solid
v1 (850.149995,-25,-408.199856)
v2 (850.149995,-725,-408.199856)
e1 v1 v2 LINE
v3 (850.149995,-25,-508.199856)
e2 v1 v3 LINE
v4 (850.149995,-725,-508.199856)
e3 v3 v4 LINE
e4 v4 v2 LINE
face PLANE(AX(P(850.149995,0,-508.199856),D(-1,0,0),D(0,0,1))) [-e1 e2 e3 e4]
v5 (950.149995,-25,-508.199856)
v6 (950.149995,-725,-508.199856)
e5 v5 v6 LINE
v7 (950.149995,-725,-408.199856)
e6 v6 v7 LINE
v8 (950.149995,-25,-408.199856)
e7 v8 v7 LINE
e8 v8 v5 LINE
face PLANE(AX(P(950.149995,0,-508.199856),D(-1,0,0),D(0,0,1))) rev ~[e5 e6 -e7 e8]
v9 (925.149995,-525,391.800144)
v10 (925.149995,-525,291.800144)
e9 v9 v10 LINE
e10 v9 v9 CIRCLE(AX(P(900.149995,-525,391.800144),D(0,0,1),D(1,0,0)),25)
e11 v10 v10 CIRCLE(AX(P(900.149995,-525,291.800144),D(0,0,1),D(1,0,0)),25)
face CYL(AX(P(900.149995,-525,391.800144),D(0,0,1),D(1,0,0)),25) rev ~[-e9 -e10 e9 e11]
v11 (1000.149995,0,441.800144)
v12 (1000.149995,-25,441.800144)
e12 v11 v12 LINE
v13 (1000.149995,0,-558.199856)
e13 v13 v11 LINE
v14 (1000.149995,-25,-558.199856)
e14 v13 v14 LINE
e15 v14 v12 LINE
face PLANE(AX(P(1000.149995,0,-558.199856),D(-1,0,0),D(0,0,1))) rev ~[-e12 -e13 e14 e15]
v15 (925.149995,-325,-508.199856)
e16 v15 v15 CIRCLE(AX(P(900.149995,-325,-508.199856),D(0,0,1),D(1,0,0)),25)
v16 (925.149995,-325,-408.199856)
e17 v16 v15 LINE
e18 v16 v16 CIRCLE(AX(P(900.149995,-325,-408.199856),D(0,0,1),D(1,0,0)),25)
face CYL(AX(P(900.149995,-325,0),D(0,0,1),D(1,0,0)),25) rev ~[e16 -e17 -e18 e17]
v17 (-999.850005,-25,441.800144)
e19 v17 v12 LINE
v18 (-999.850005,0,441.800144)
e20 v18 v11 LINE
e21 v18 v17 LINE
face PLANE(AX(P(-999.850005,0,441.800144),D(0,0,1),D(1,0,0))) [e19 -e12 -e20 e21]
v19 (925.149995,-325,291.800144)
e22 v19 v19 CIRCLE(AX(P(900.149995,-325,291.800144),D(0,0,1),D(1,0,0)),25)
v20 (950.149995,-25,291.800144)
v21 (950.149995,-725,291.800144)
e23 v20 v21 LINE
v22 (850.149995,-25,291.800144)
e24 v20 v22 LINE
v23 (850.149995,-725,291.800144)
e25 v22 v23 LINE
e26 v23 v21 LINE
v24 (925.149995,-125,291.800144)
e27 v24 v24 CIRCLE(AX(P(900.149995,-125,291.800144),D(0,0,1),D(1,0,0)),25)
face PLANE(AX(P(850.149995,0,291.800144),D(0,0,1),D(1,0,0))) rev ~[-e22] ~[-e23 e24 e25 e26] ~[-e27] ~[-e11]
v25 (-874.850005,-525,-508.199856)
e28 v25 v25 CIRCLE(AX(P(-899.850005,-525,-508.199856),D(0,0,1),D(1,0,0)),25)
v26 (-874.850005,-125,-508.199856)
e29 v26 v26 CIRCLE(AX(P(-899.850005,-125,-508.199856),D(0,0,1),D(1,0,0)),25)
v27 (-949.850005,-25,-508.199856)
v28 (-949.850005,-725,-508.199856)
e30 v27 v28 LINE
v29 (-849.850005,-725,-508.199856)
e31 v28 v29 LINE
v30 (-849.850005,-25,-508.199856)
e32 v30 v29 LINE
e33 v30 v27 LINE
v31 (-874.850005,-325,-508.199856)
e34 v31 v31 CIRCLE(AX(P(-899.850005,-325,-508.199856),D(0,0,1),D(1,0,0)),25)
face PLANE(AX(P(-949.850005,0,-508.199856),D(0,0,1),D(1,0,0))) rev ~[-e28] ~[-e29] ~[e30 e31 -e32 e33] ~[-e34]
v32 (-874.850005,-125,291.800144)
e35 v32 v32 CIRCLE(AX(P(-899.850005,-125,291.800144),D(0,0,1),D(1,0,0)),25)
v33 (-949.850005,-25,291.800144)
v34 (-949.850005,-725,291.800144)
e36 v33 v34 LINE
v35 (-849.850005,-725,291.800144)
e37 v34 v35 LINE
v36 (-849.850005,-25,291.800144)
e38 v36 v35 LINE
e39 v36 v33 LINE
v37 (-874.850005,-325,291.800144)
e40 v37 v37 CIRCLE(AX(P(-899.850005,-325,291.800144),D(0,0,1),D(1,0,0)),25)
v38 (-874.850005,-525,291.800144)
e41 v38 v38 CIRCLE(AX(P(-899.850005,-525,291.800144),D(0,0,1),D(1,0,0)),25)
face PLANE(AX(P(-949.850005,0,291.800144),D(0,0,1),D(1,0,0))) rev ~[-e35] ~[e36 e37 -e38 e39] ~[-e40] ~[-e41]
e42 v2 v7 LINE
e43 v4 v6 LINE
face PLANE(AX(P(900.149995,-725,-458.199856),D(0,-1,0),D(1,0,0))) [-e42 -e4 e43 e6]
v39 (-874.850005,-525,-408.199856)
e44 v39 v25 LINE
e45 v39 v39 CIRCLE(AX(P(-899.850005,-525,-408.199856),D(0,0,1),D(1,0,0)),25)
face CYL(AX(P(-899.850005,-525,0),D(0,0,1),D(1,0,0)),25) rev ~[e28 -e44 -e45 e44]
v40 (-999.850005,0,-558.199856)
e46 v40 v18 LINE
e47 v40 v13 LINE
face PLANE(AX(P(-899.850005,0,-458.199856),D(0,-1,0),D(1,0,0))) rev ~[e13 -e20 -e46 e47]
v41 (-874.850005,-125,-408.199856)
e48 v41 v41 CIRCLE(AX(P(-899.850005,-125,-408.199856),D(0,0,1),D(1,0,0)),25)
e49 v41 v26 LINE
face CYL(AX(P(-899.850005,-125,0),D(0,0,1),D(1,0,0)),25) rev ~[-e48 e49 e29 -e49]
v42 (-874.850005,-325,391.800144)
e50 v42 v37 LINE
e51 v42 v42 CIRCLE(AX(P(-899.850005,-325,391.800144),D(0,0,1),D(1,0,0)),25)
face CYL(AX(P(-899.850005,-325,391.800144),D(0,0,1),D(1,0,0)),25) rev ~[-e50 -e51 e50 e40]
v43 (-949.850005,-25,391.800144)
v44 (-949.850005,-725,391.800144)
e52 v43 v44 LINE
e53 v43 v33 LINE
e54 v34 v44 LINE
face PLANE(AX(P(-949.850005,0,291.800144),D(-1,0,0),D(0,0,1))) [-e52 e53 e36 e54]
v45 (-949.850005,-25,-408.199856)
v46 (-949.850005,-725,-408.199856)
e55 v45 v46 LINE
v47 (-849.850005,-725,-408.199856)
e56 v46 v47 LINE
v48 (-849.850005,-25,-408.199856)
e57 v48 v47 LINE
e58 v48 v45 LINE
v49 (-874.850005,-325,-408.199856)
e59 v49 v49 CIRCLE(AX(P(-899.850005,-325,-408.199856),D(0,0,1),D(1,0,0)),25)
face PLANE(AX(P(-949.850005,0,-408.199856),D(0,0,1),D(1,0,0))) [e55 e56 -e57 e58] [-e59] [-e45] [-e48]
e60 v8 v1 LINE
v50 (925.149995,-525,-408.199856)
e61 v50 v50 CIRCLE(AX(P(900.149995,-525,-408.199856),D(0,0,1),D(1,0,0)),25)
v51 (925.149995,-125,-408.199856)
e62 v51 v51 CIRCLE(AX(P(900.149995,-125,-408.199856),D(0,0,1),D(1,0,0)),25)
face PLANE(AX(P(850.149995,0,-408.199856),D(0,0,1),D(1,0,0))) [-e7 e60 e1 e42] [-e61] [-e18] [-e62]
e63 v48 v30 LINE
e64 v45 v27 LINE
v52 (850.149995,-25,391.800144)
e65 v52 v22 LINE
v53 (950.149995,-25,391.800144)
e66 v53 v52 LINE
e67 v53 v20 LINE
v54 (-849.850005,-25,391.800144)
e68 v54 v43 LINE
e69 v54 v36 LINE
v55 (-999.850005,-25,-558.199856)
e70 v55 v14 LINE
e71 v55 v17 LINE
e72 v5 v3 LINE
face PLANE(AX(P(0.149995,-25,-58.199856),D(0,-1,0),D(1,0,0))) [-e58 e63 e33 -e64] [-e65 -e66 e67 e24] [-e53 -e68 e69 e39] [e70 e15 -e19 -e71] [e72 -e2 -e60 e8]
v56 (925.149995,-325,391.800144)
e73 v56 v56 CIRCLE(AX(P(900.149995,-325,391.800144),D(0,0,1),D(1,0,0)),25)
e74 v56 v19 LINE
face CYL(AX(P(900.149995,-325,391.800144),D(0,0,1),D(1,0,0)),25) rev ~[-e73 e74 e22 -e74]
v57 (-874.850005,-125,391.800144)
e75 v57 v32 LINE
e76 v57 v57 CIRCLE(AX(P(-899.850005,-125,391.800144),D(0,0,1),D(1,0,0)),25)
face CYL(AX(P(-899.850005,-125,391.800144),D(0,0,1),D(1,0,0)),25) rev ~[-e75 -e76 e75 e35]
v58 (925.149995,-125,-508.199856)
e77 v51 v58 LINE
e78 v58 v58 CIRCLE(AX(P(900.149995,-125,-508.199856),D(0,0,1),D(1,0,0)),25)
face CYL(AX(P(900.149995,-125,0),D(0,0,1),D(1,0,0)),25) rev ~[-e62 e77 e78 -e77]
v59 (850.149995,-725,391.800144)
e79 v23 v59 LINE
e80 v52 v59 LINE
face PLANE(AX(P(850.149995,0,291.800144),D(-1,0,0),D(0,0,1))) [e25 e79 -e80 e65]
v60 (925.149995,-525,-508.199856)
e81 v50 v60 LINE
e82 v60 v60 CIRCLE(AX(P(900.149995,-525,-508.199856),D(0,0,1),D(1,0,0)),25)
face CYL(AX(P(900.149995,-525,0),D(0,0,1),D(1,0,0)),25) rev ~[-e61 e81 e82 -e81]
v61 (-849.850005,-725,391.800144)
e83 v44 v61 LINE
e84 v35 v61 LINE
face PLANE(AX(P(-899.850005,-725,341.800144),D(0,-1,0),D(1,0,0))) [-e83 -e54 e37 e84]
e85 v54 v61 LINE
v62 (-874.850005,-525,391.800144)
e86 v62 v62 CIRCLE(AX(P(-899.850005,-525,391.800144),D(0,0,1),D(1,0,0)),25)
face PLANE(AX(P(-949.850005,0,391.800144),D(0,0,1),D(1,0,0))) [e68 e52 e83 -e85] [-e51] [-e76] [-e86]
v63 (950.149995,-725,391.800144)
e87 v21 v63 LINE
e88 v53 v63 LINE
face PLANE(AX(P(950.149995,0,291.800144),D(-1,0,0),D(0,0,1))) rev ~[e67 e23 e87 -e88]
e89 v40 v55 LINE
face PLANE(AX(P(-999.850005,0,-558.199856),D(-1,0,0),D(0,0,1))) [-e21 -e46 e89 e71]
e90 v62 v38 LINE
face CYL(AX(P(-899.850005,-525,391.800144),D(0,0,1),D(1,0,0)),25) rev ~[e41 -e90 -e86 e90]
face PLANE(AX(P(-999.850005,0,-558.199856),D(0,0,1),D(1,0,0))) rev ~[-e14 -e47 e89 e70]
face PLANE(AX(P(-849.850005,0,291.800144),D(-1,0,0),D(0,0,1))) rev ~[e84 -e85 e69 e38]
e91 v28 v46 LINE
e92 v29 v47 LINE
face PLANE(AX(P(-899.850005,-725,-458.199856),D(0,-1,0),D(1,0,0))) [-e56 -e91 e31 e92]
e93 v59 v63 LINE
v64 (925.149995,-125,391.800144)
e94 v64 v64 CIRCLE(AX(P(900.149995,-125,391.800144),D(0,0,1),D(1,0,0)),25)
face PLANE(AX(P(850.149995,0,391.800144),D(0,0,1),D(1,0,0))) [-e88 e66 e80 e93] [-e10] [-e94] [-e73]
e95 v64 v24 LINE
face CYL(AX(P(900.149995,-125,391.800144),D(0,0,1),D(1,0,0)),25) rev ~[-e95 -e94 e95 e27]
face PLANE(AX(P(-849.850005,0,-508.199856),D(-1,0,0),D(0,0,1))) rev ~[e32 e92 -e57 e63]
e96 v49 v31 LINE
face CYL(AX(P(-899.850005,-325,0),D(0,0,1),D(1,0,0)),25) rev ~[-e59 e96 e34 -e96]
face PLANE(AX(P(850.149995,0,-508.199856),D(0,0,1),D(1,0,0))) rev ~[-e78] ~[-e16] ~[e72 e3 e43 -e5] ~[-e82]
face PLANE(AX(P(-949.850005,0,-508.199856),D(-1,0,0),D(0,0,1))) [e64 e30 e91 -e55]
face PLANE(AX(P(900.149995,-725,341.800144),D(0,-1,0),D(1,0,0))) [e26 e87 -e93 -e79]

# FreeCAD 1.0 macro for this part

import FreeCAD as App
import Part
import Sketcher

V = App.Vector
Q = App.Units.Quantity

doc = App.newDocument("Part")
body = doc.addObject("PartDesign::Body", "Body")

sketch1 = body.newObject("Sketcher::SketchObject", "Sketch")
sketch1.AttachmentSupport = (doc.getObject("XZ_Plane"), [""])
sketch1.MapMode = "FlatFace"
sketch1.addGeometry(Part.LineSegment(V(-1000, 442, 0), V(-1000, -558, 0)), False)
sketch1.addGeometry(Part.LineSegment(V(-1000, -558, 0), V(1000, -558, 0)), False)
sketch1.addGeometry(Part.LineSegment(V(1000, -558, 0), V(1000, 442, 0)), False)
sketch1.addGeometry(Part.LineSegment(V(1000, 442, 0), V(-1000, 442, 0)), False)
sketch1.addConstraint(Sketcher.Constraint("Coincident", 0, 2, 1, 1))
sketch1.addConstraint(Sketcher.Constraint("Coincident", 1, 2, 2, 1))
sketch1.addConstraint(Sketcher.Constraint("Coincident", 2, 2, 3, 1))
sketch1.addConstraint(Sketcher.Constraint("Coincident", 3, 2, 0, 1))
sketch1.addConstraint(Sketcher.Constraint("Vertical", 0))
sketch1.addConstraint(Sketcher.Constraint("Horizontal", 1))
sketch1.addConstraint(Sketcher.Constraint("Vertical", 2))
sketch1.addConstraint(Sketcher.Constraint("Horizontal", 3))
sketch1.addConstraint(Sketcher.Constraint("DistanceX", 1, 1, 1, 2, Q("2000 mm")))
sketch1.addConstraint(Sketcher.Constraint("DistanceY", 0, 2, 0, 1, Q("1000 mm")))
sketch1.addConstraint(Sketcher.Constraint("DistanceX", 0, 2, -1, 1, Q("999.850005 mm")))
sketch1.addConstraint(Sketcher.Constraint("DistanceY", 0, 2, -1, 1, Q("558.199856 mm")))
pad1 = body.newObject("PartDesign::Pad", "Pad")
pad1.Profile = sketch1
pad1.Length = 25

sketch2 = body.newObject("Sketcher::SketchObject", "Sketch001")
sketch2.AttachmentSupport = (doc.getObject("XZ_Plane"), [""])
sketch2.MapMode = "FlatFace"
sketch2.addGeometry(Part.LineSegment(V(-950, -408, 0), V(-950, -508, 0)), False)
sketch2.addGeometry(Part.LineSegment(V(-950, -508, 0), V(-850, -508, 0)), False)
sketch2.addGeometry(Part.LineSegment(V(-850, -508, 0), V(-850, -408, 0)), False)
sketch2.addGeometry(Part.LineSegment(V(-850, -408, 0), V(-950, -408, 0)), False)
sketch2.addGeometry(Part.LineSegment(V(-950, 392, 0), V(-950, 292, 0)), False)
sketch2.addGeometry(Part.LineSegment(V(-950, 292, 0), V(-850, 292, 0)), False)
sketch2.addGeometry(Part.LineSegment(V(-850, 292, 0), V(-850, 392, 0)), False)
sketch2.addGeometry(Part.LineSegment(V(-850, 392, 0), V(-950, 392, 0)), False)
sketch2.addGeometry(Part.LineSegment(V(850, 392, 0), V(850, 292, 0)), False)
sketch2.addGeometry(Part.LineSegment(V(850, 292, 0), V(950, 292, 0)), False)
sketch2.addGeometry(Part.LineSegment(V(950, 292, 0), V(950, 392, 0)), False)
sketch2.addGeometry(Part.LineSegment(V(950, 392, 0), V(850, 392, 0)), False)
sketch2.addGeometry(Part.LineSegment(V(850, -408, 0), V(850, -508, 0)), False)
sketch2.addGeometry(Part.LineSegment(V(850, -508, 0), V(950, -508, 0)), False)
sketch2.addGeometry(Part.LineSegment(V(950, -508, 0), V(950, -408, 0)), False)
sketch2.addGeometry(Part.LineSegment(V(950, -408, 0), V(850, -408, 0)), False)
sketch2.addConstraint(Sketcher.Constraint("Coincident", 0, 2, 1, 1))
sketch2.addConstraint(Sketcher.Constraint("Coincident", 1, 2, 2, 1))
sketch2.addConstraint(Sketcher.Constraint("Coincident", 2, 2, 3, 1))
sketch2.addConstraint(Sketcher.Constraint("Coincident", 3, 2, 0, 1))
sketch2.addConstraint(Sketcher.Constraint("Coincident", 4, 2, 5, 1))
sketch2.addConstraint(Sketcher.Constraint("Coincident", 5, 2, 6, 1))
sketch2.addConstraint(Sketcher.Constraint("Coincident", 6, 2, 7, 1))
sketch2.addConstraint(Sketcher.Constraint("Coincident", 7, 2, 4, 1))
sketch2.addConstraint(Sketcher.Constraint("Coincident", 8, 2, 9, 1))
sketch2.addConstraint(Sketcher.Constraint("Coincident", 9, 2, 10, 1))
sketch2.addConstraint(Sketcher.Constraint("Coincident", 10, 2, 11, 1))
sketch2.addConstraint(Sketcher.Constraint("Coincident", 11, 2, 8, 1))
sketch2.addConstraint(Sketcher.Constraint("Coincident", 12, 2, 13, 1))
sketch2.addConstraint(Sketcher.Constraint("Coincident", 13, 2, 14, 1))
sketch2.addConstraint(Sketcher.Constraint("Coincident", 14, 2, 15, 1))
sketch2.addConstraint(Sketcher.Constraint("Coincident", 15, 2, 12, 1))
sketch2.addConstraint(Sketcher.Constraint("Vertical", 0))
sketch2.addConstraint(Sketcher.Constraint("Horizontal", 1))
sketch2.addConstraint(Sketcher.Constraint("Vertical", 2))
sketch2.addConstraint(Sketcher.Constraint("Horizontal", 3))
sketch2.addConstraint(Sketcher.Constraint("Vertical", 4))
sketch2.addConstraint(Sketcher.Constraint("Horizontal", 5))
sketch2.addConstraint(Sketcher.Constraint("Vertical", 6))
sketch2.addConstraint(Sketcher.Constraint("Horizontal", 7))
sketch2.addConstraint(Sketcher.Constraint("Vertical", 8))
sketch2.addConstraint(Sketcher.Constraint("Horizontal", 9))
sketch2.addConstraint(Sketcher.Constraint("Vertical", 10))
sketch2.addConstraint(Sketcher.Constraint("Horizontal", 11))
sketch2.addConstraint(Sketcher.Constraint("Vertical", 12))
sketch2.addConstraint(Sketcher.Constraint("Horizontal", 13))
sketch2.addConstraint(Sketcher.Constraint("Vertical", 14))
sketch2.addConstraint(Sketcher.Constraint("Horizontal", 15))
sketch2.addConstraint(Sketcher.Constraint("Horizontal", 5, 2, 8, 2))
sketch2.addConstraint(Sketcher.Constraint("Horizontal", 7, 2, 10, 2))
sketch2.addConstraint(Sketcher.Constraint("Horizontal", 1, 2, 12, 2))
sketch2.addConstraint(Sketcher.Constraint("Horizontal", 3, 2, 14, 2))
sketch2.addConstraint(Sketcher.Constraint("Vertical", 3, 2, 4, 2))
sketch2.addConstraint(Sketcher.Constraint("Vertical", 2, 2, 5, 2))
sketch2.addConstraint(Sketcher.Constraint("Vertical", 11, 2, 12, 2))
sketch2.addConstraint(Sketcher.Constraint("Vertical", 10, 2, 13, 2))
sketch2.addConstraint(Sketcher.Constraint("Equal", 7, 9))
sketch2.addConstraint(Sketcher.Constraint("Equal", 15, 0))
sketch2.addConstraint(Sketcher.Constraint("Equal", 2, 4))
sketch2.addConstraint(Sketcher.Constraint("DistanceX", 1, 1, 1, 2, Q("100 mm")))
sketch2.addConstraint(Sketcher.Constraint("DistanceY", 3, 2, 4, 2, Q("700 mm")))
sketch2.addConstraint(Sketcher.Constraint("DistanceX", 5, 2, 8, 2, Q("1700 mm")))
sketch2.addConstraint(Sketcher.Constraint("DistanceX", 0, 2, -1, 1, Q("949.850005 mm")))
sketch2.addConstraint(Sketcher.Constraint("DistanceY", 0, 2, -1, 1, Q("508.199856 mm")))
pad2 = body.newObject("PartDesign::Pad", "Pad001")
pad2.Profile = sketch2
pad2.Length = 725

sketch3 = body.newObject("Sketcher::SketchObject", "Sketch002")
sketch3.AttachmentSupport = (doc.getObject("XY_Plane"), [""])
sketch3.MapMode = "FlatFace"
sketch3.addGeometry(Part.Circle(V(-900, -125, 0), V(0, 0, 1), 25), False)
sketch3.addGeometry(Part.Circle(V(-900, -325, 0), V(0, 0, 1), 25), False)
sketch3.addGeometry(Part.Circle(V(-900, -525, 0), V(0, 0, 1), 25), False)
sketch3.addGeometry(Part.Circle(V(900, -525, 0), V(0, 0, 1), 25), False)
sketch3.addGeometry(Part.Circle(V(900, -325, 0), V(0, 0, 1), 25), False)
sketch3.addGeometry(Part.Circle(V(900, -125, 0), V(0, 0, 1), 25), False)
sketch3.addConstraint(Sketcher.Constraint("Equal", 0, 1))
sketch3.addConstraint(Sketcher.Constraint("Equal", 1, 2))
sketch3.addConstraint(Sketcher.Constraint("Equal", 2, 3))
sketch3.addConstraint(Sketcher.Constraint("Equal", 3, 4))
sketch3.addConstraint(Sketcher.Constraint("Equal", 4, 5))
sketch3.addConstraint(Sketcher.Constraint("Horizontal", 2, 3, 3, 3))
sketch3.addConstraint(Sketcher.Constraint("Horizontal", 1, 3, 4, 3))
sketch3.addConstraint(Sketcher.Constraint("Horizontal", 0, 3, 5, 3))
sketch3.addConstraint(Sketcher.Constraint("Vertical", 0, 3, 1, 3))
sketch3.addConstraint(Sketcher.Constraint("Vertical", 1, 3, 2, 3))
sketch3.addConstraint(Sketcher.Constraint("Vertical", 3, 3, 4, 3))
sketch3.addConstraint(Sketcher.Constraint("Vertical", 4, 3, 5, 3))
sketch3.addConstraint(Sketcher.Constraint("Diameter", 0, Q("50 mm")))
sketch3.addConstraint(Sketcher.Constraint("DistanceY", 0, 3, -1, 1, Q("125 mm")))
sketch3.addConstraint(Sketcher.Constraint("DistanceY", 1, 3, -1, 1, Q("325 mm")))
sketch3.addConstraint(Sketcher.Constraint("DistanceY", 2, 3, -1, 1, Q("525 mm")))
sketch3.addConstraint(Sketcher.Constraint("DistanceX", 2, 3, 3, 3, Q("1800 mm")))
sketch3.addConstraint(Sketcher.Constraint("DistanceX", 0, 3, -1, 1, Q("899.850005 mm")))
pocket1 = body.newObject("PartDesign::Pocket", "Pocket")
pocket1.Profile = sketch3
pocket1.Type = "ThroughAll"

sketch4 = body.newObject("Sketcher::SketchObject", "Sketch003")
sketch4.AttachmentSupport = (doc.getObject("XY_Plane"), [""])
sketch4.MapMode = "FlatFace"
sketch4.AttachmentOffset = App.Placement(V(0, 0, 391.800144), App.Rotation())
sketch4.addGeometry(Part.Circle(V(900, -525, 0), V(0, 0, 1), 25), False)
sketch4.addGeometry(Part.Circle(V(900, -325, 0), V(0, 0, 1), 25), False)
sketch4.addGeometry(Part.Circle(V(900, -125, 0), V(0, 0, 1), 25), False)
sketch4.addGeometry(Part.Circle(V(-900, -525, 0), V(0, 0, 1), 25), False)
sketch4.addGeometry(Part.Circle(V(-900, -325, 0), V(0, 0, 1), 25), False)
sketch4.addGeometry(Part.Circle(V(-900, -125, 0), V(0, 0, 1), 25), False)
sketch4.addConstraint(Sketcher.Constraint("Equal", 0, 1))
sketch4.addConstraint(Sketcher.Constraint("Equal", 1, 2))
sketch4.addConstraint(Sketcher.Constraint("Equal", 2, 3))
sketch4.addConstraint(Sketcher.Constraint("Equal", 3, 4))
sketch4.addConstraint(Sketcher.Constraint("Equal", 4, 5))
sketch4.addConstraint(Sketcher.Constraint("Horizontal", 0, 3, 3, 3))
sketch4.addConstraint(Sketcher.Constraint("Horizontal", 1, 3, 4, 3))
sketch4.addConstraint(Sketcher.Constraint("Horizontal", 2, 3, 5, 3))
sketch4.addConstraint(Sketcher.Constraint("Vertical", 0, 3, 1, 3))
sketch4.addConstraint(Sketcher.Constraint("Vertical", 1, 3, 2, 3))
sketch4.addConstraint(Sketcher.Constraint("Vertical", 3, 3, 4, 3))
sketch4.addConstraint(Sketcher.Constraint("Vertical", 4, 3, 5, 3))
sketch4.addConstraint(Sketcher.Constraint("Diameter", 0, Q("50 mm")))
sketch4.addConstraint(Sketcher.Constraint("DistanceY", 0, 3, -1, 1, Q("525 mm")))
sketch4.addConstraint(Sketcher.Constraint("DistanceY", 1, 3, -1, 1, Q("325 mm")))
sketch4.addConstraint(Sketcher.Constraint("DistanceY", 2, 3, -1, 1, Q("125 mm")))
sketch4.addConstraint(Sketcher.Constraint("DistanceX", 3, 3, 0, 3, Q("1800 mm")))
sketch4.addConstraint(Sketcher.Constraint("DistanceX", -1, 1, 0, 3, Q("900.149995 mm")))
pocket2 = body.newObject("PartDesign::Pocket", "Pocket001")
pocket2.Profile = sketch4
pocket2.Type = "ThroughAll"

doc.recompute()
